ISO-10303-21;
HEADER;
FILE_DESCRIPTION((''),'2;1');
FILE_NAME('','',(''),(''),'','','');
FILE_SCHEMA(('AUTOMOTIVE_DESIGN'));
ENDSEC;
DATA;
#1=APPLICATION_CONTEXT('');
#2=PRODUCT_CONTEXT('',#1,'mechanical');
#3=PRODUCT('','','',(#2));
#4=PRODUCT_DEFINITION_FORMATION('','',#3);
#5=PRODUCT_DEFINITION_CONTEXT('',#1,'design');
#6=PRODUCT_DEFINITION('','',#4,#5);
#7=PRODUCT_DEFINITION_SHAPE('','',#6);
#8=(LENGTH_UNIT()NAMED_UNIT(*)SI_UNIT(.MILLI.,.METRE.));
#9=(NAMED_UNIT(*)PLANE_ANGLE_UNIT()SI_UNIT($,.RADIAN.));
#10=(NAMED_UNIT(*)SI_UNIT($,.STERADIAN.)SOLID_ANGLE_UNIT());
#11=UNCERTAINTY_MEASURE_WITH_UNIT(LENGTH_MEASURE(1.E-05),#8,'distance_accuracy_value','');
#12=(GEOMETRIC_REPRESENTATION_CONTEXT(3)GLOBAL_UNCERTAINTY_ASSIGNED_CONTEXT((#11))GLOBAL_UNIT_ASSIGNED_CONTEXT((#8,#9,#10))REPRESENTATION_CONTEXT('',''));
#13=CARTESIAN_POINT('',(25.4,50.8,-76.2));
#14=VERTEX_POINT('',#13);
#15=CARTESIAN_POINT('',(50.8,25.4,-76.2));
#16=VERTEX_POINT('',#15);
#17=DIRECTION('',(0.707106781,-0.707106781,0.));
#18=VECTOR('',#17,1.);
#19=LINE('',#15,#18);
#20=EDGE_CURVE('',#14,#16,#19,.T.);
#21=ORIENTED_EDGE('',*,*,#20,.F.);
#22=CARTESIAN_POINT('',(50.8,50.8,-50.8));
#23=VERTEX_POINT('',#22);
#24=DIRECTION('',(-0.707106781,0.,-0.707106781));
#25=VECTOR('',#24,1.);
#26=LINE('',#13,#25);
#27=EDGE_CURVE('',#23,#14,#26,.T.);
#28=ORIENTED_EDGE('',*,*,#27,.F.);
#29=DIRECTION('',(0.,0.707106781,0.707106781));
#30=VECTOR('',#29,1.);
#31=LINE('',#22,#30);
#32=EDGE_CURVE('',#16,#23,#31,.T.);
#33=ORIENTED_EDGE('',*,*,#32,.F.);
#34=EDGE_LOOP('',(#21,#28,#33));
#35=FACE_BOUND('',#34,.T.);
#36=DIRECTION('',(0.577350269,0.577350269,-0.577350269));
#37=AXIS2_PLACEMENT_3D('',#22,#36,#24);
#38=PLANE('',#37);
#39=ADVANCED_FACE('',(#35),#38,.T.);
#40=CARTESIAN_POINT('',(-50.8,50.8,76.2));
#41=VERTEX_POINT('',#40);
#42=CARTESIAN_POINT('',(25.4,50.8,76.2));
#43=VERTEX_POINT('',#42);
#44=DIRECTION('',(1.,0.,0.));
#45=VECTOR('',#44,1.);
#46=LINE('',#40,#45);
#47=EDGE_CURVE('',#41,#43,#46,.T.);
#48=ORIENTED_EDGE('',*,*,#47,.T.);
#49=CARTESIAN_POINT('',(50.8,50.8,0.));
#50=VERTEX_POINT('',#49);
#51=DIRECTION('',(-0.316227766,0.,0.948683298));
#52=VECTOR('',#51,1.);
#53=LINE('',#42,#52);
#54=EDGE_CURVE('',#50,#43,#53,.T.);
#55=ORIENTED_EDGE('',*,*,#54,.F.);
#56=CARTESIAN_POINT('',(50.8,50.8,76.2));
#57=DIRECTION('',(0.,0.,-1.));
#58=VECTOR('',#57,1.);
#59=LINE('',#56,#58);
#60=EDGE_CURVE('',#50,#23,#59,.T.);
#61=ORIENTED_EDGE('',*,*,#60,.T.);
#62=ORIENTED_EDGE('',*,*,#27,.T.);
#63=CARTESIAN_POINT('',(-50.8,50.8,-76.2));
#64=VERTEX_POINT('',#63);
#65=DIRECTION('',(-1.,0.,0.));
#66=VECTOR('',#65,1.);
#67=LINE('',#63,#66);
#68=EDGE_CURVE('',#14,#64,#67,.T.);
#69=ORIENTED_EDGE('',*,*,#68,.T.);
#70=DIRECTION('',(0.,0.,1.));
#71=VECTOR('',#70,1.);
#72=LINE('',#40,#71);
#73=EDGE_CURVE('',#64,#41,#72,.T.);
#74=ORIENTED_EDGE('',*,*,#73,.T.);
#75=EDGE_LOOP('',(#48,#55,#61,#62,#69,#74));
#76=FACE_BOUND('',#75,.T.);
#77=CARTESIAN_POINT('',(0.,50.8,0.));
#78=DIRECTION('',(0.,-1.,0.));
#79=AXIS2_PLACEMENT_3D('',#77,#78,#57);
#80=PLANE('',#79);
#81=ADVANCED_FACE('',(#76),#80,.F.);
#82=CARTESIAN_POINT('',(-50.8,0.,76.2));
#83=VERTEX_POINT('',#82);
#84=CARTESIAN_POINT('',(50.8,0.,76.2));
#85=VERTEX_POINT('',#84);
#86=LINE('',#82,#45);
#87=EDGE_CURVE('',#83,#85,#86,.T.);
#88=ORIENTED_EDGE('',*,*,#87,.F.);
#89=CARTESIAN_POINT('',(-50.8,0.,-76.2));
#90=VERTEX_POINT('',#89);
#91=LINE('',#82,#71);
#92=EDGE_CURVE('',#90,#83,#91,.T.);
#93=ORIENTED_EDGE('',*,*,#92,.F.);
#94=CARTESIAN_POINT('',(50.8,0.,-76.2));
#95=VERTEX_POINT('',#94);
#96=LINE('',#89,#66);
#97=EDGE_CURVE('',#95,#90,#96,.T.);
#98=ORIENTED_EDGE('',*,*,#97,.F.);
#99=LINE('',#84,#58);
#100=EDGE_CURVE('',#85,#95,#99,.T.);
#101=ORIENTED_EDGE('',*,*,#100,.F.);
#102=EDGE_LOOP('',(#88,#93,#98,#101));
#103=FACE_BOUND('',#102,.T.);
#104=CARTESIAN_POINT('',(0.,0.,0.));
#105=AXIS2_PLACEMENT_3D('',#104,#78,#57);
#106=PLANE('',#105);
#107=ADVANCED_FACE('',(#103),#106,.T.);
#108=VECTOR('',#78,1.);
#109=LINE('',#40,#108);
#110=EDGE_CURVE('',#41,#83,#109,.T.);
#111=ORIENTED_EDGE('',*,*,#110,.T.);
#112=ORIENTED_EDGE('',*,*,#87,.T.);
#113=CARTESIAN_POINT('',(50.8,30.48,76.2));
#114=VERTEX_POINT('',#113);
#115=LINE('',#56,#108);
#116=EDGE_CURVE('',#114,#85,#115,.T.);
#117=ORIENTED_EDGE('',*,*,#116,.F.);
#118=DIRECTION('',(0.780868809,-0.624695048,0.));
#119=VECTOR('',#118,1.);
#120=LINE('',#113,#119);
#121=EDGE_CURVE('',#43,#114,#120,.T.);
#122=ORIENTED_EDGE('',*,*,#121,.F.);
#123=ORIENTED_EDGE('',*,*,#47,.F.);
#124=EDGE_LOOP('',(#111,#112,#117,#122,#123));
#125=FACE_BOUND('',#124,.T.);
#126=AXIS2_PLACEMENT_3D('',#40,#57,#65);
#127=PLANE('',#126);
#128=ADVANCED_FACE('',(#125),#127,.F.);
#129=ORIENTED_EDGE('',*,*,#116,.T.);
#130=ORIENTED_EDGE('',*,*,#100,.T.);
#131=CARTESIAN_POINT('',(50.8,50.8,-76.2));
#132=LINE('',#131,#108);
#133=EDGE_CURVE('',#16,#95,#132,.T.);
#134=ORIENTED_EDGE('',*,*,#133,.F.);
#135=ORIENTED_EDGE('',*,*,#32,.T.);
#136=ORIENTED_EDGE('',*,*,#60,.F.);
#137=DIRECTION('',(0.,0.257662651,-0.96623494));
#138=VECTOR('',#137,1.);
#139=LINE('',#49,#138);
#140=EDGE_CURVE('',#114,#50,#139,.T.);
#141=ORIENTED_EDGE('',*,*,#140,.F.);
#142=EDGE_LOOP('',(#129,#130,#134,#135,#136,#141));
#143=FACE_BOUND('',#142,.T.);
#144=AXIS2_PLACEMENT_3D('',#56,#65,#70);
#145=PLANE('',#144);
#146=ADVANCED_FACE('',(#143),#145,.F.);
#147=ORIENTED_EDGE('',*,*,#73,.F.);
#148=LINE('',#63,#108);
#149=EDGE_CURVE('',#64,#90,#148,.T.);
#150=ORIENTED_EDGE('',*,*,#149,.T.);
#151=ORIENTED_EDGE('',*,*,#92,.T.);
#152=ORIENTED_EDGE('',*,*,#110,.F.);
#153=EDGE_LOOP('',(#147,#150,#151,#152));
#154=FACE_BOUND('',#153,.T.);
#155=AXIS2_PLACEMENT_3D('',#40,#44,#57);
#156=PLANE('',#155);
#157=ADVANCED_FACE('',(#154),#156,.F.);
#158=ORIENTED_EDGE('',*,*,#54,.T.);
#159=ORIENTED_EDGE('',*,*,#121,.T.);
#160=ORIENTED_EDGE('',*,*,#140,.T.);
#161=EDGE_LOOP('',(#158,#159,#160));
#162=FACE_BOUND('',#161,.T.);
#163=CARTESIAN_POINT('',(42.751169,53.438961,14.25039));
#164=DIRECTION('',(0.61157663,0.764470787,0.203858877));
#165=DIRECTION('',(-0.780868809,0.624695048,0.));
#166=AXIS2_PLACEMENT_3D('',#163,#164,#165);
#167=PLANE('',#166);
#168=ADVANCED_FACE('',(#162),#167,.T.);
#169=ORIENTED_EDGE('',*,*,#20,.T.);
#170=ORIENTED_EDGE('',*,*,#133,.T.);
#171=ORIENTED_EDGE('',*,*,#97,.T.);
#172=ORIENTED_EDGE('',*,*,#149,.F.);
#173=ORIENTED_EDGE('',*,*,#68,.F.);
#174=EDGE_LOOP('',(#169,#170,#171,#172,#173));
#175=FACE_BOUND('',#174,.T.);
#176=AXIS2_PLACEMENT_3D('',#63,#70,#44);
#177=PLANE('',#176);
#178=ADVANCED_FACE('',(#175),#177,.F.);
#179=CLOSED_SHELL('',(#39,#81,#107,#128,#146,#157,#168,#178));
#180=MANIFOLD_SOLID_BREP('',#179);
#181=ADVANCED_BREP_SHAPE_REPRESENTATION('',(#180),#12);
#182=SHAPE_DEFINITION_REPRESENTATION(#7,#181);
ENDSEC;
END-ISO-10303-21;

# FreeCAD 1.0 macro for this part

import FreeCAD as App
import Part
import Sketcher
Q = App.Units.Quantity


def add_polygon(sketch, points):
    """Adds a closed chain of lines whose ends are joined by coincident constraints."""
    first, n = sketch.GeometryCount, len(points)
    for a, b in zip(points, points[1:] + points[:1]):
        sketch.addGeometry(Part.LineSegment(App.Vector(*a, 0), App.Vector(*b, 0)), False)
    for i in range(n):
        sketch.addConstraint(Sketcher.Constraint("Coincident", first + i, 2, first + (i + 1) % n, 1))

doc = App.newDocument("Part")
body = doc.addObject("PartDesign::Body", "Body")

# Sketch on XZ plane
sketch1 = body.newObject("Sketcher::SketchObject", "Sketch")
sketch1.AttachmentSupport = (doc.getObject("XZ_Plane"), [""])
sketch1.MapMode = "FlatFace"
add_polygon(sketch1, [(-50.8, -76.2), (-50.8, 76.2), (50.8, 76.2), (50.8, -76.2)])  # lines 0-3
sketch1.addConstraint(Sketcher.Constraint("Vertical", 0))
sketch1.addConstraint(Sketcher.Constraint("Horizontal", 1))
sketch1.addConstraint(Sketcher.Constraint("Vertical", 2))
sketch1.addConstraint(Sketcher.Constraint("Horizontal", 3))
sketch1.addConstraint(Sketcher.Constraint("Symmetric", 0, 2, 2, 2, -1, 1))
sketch1.addConstraint(Sketcher.Constraint("DistanceX", 1, 1, 1, 2, Q("4 in")))
sketch1.addConstraint(Sketcher.Constraint("DistanceY", 0, 1, 0, 2, Q("6 in")))
pad1 = body.newObject("PartDesign::Pad", "Pad")
pad1.Profile = sketch1
pad1.Length = Q("2 in")
pad1.Reversed = True

# Sketch on an angled plane
sketch2 = body.newObject("Sketcher::SketchObject", "Sketch001")
sketch2.Placement = App.Placement(App.Vector(42.751169, 53.438961, 14.25039), App.Rotation(App.Vector(0.791185203, -0.590926708, -0.157580455), App.Vector(0.000000001, 0.257662651, -0.966234939), App.Vector(0.61157663, 0.764470787, 0.203858877), "ZXY"))
add_polygon(sketch2, [(10.173132, 13.089263), (-21.930603, -60.53784), (10.173132, -65.773545)])  # lines 0-2
sketch2.addConstraint(Sketcher.Constraint("Vertical", 2))
sketch2.addConstraint(Sketcher.Constraint("Distance", 1, Q("32.527871 mm")))
sketch2.addConstraint(Sketcher.Constraint("DistanceY", 2, 1, 2, 2, Q("78.862807 mm")))
sketch2.addConstraint(Sketcher.Constraint("DistanceY", 0, 2, -1, 1, Q("60.53784 mm")))
sketch2.addConstraint(Sketcher.Constraint("DistanceX", -1, 1, 1, 2, Q("10.173132 mm")))
sketch2.addConstraint(Sketcher.Constraint("Distance", 0, Q("80.321853 mm")))
pocket1 = body.newObject("PartDesign::Pocket", "Pocket")
pocket1.Profile = sketch2
pocket1.Type = "ThroughAll"
pocket1.Reversed = True

# Sketch on an angled plane
sketch3 = body.newObject("Sketcher::SketchObject", "Sketch002")
sketch3.Placement = App.Placement(App.Vector(50.8, 50.8, -50.8), App.Rotation(App.Vector(0.816496581, -0.40824829, 0.40824829), App.Vector(0, 0.707106781, 0.707106781), App.Vector(-0.577350269, -0.577350269, 0.577350269), "ZXY"))
add_polygon(sketch3, [(0, -35.921024), (0, 0), (-31.10852, -17.960512)])  # lines 0-2
sketch3.addConstraint(Sketcher.Constraint("Vertical", 0))
sketch3.addConstraint(Sketcher.Constraint("Coincident", 0, 2, -1, 1))
sketch3.addConstraint(Sketcher.Constraint("Equal", 1, 2))
sketch3.addConstraint(Sketcher.Constraint("Angle", 1, Q("-150 deg")))
sketch3.addConstraint(Sketcher.Constraint("DistanceY", 0, 1, 0, 2, Q("35.921024 mm")))
pocket2 = body.newObject("PartDesign::Pocket", "Pocket001")
pocket2.Profile = sketch3
pocket2.Type = "ThroughAll"

doc.recompute()
